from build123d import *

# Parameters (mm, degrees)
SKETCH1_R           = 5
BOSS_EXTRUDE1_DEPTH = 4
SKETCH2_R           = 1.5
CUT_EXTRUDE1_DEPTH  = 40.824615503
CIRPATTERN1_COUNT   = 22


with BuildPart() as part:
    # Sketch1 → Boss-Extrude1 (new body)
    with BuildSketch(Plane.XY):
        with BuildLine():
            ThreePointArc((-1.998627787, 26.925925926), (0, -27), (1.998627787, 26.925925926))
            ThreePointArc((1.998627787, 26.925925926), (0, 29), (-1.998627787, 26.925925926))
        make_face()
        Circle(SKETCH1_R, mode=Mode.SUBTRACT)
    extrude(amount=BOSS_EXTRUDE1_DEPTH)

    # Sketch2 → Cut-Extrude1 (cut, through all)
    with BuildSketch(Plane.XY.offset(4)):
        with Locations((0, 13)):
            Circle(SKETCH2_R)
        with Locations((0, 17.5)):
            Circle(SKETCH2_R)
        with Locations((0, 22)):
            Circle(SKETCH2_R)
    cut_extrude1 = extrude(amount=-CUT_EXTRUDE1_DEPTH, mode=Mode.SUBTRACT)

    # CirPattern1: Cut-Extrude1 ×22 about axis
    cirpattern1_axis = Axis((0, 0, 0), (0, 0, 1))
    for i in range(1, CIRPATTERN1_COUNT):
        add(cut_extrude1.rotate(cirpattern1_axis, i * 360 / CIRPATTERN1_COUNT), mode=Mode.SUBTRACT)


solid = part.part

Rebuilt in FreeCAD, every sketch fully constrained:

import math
import FreeCAD as App
import Part
import Sketcher
from FreeCAD import Vector
Q = App.Units.Quantity

doc = App.newDocument("Part")
params = doc.addObject("Spreadsheet::Sheet", "Params")
for row, (alias, value) in enumerate([
    ("sketch1_diameter", "10 mm"),
    ("sketch1_radius", "27 mm"),
    ("sketch1_radius2", "2 mm"),
    ("pad1_length", "4 mm"),
    ("sketch2_diameter", "3 mm"),
], start=1):
    params.set(f"A{row}", alias)
    params.set(f"B{row}", "=" + value)
    params.setAlias(f"B{row}", alias)

body = doc.addObject("PartDesign::Body", "Body")

sketch1 = body.newObject("Sketcher::SketchObject", "Sketch")
sketch1.AttachmentSupport = (doc.getObject("XY_Plane"), [""])
sketch1.MapMode = "FlatFace"
sketch1.addGeometry([
    Part.ArcOfCircle(Part.Circle(Vector(0, 0, 0), Vector(0, 0, 1), 27), math.radians(94.245103), math.radians(445.754897)),
    Part.ArcOfCircle(Part.Circle(Vector(0, 27, 0), Vector(0, 0, 1), 2), math.radians(-2.122551), math.radians(182.122551)),
    Part.Circle(Vector(0, 0, 0), Vector(0, 0, 1), 5),
], False)
sketch1.addConstraint([
    Sketcher.Constraint("Coincident", 0, 1, 1, 2),
    Sketcher.Constraint("Coincident", 1, 1, 0, 2),
    Sketcher.Constraint("Coincident", 0, 3, -1, 1),
    Sketcher.Constraint("Coincident", 2, 3, -1, 1),
    Sketcher.Constraint("PointOnObject", 1, 3, -2),
    Sketcher.Constraint("Diameter", 2, Q("10 mm")),
    Sketcher.Constraint("Radius", 0, Q("27 mm")),
    Sketcher.Constraint("Radius", 1, Q("2 mm")),
    Sketcher.Constraint("DistanceY", -1, 1, 1, 3, Q("27 mm")),
])
sketch1.setExpression("Constraints[5]", "Params.sketch1_diameter")
sketch1.setExpression("Constraints[6]", "Params.sketch1_radius")
sketch1.setExpression("Constraints[7]", "Params.sketch1_radius2")
pad1 = body.newObject("PartDesign::Pad", "Pad")
pad1.Profile = sketch1
pad1.setExpression("Length", "Params.pad1_length")

sketch2 = body.newObject("Sketcher::SketchObject", "Sketch001")
sketch2.AttachmentSupport = (doc.getObject("XY_Plane"), [""])
sketch2.MapMode = "FlatFace"
sketch2.AttachmentOffset = App.Placement(Vector(0, 0, 4), App.Rotation())
sketch2.addGeometry([
    Part.Circle(Vector(0, 13, 0), Vector(0, 0, 1), 1.5),
    Part.Circle(Vector(0, 17.5, 0), Vector(0, 0, 1), 1.5),
    Part.Circle(Vector(0, 22, 0), Vector(0, 0, 1), 1.5),
], False)
sketch2.addConstraint([
    Sketcher.Constraint("Equal", 0, 1),
    Sketcher.Constraint("Equal", 1, 2),
    Sketcher.Constraint("PointOnObject", 0, 3, -2),
    Sketcher.Constraint("PointOnObject", 1, 3, -2),
    Sketcher.Constraint("PointOnObject", 2, 3, -2),
    Sketcher.Constraint("Diameter", 0, Q("3 mm")),
    Sketcher.Constraint("DistanceY", -1, 1, 0, 3, Q("13 mm")),
    Sketcher.Constraint("DistanceY", -1, 1, 2, 3, Q("22 mm")),
    Sketcher.Constraint("DistanceY", -1, 1, 1, 3, Q("17.5 mm")),
])
sketch2.setExpression("Constraints[5]", "Params.sketch2_diameter")
pocket1 = body.newObject("PartDesign::Pocket", "Pocket")
pocket1.Profile = sketch2
pocket1.Type = "ThroughAll"
doc.recompute()

polarpattern = body.newObject("PartDesign::PolarPattern", "PolarPattern")
polarpattern.Originals = [pocket1]
polarpattern.Axis = (doc.getObject("Z_Axis"), [""])
polarpattern.Angle = 360
polarpattern.Occurrences = 22
body.Tip = polarpattern

doc.recompute()
